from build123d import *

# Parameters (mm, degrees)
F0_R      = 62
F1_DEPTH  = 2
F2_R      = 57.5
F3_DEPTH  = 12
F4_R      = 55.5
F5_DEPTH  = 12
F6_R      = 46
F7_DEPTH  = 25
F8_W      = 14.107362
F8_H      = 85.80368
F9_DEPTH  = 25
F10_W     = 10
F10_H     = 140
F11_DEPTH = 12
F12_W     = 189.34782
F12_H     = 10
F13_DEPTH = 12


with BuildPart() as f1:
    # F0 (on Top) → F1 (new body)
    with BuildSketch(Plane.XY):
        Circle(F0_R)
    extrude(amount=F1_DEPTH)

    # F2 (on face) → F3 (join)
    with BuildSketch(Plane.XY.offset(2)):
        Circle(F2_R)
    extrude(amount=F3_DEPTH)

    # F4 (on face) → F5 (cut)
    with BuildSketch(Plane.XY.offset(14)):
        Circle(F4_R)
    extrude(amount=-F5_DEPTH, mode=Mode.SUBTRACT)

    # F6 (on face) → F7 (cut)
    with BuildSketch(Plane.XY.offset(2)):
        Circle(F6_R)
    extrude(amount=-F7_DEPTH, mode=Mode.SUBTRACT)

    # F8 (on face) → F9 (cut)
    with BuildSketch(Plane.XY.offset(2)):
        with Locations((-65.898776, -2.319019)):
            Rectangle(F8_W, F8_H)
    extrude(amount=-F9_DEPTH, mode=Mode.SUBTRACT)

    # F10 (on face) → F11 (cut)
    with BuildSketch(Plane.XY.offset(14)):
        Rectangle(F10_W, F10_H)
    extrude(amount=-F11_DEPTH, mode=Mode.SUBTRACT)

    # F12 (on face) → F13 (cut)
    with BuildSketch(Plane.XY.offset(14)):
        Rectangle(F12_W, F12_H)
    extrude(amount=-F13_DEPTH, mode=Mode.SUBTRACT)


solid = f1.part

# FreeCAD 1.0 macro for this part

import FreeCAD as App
import Part
import Sketcher

doc = App.newDocument("Part")
body = doc.addObject("PartDesign::Body", "Body")

# Sketch on XY plane
sketch1 = doc.addObject("Sketcher::SketchObject", "Sketch")
body.addObject(sketch1)
sketch1.AttachmentSupport = (doc.XY_Plane, [""])
sketch1.MapMode = "FlatFace"
sketch1.addGeometry(Part.Circle(App.Vector(0, 0, 0), App.Vector(0, 0, 1), 62), False)
sketch1.addConstraint([
    Sketcher.Constraint("Coincident", 0, 3, -1, 1),
    Sketcher.Constraint("Diameter", 0, 124.0),
])
pad1 = doc.addObject("PartDesign::Pad", "Pad")
body.addObject(pad1)
pad1.Profile = sketch1
pad1.Length = 2

# Sketch on XY plane
sketch2 = doc.addObject("Sketcher::SketchObject", "Sketch001")
body.addObject(sketch2)
sketch2.AttachmentSupport = (doc.XY_Plane, [""])
sketch2.MapMode = "FlatFace"
sketch2.AttachmentOffset = App.Placement(App.Vector(0, 0, 2), App.Rotation())
sketch2.addGeometry(Part.Circle(App.Vector(0, 0, 0), App.Vector(0, 0, 1), 58), False)
sketch2.addConstraint([
    Sketcher.Constraint("Coincident", 0, 3, -1, 1),
    Sketcher.Constraint("Diameter", 0, 115.0),
])
pad2 = doc.addObject("PartDesign::Pad", "Pad001")
body.addObject(pad2)
pad2.Profile = sketch2
pad2.Length = 12

# Sketch on XY plane
sketch3 = doc.addObject("Sketcher::SketchObject", "Sketch002")
body.addObject(sketch3)
sketch3.AttachmentSupport = (doc.XY_Plane, [""])
sketch3.MapMode = "FlatFace"
sketch3.AttachmentOffset = App.Placement(App.Vector(0, 0, 14), App.Rotation())
sketch3.addGeometry(Part.Circle(App.Vector(0, 0, 0), App.Vector(0, 0, 1), 56), False)
sketch3.addConstraint([
    Sketcher.Constraint("Coincident", 0, 3, -1, 1),
    Sketcher.Constraint("Diameter", 0, 111.0),
])
pocket1 = doc.addObject("PartDesign::Pocket", "Pocket")
body.addObject(pocket1)
pocket1.Profile = sketch3
pocket1.Length = 12

# Sketch on XY plane
sketch4 = doc.addObject("Sketcher::SketchObject", "Sketch003")
body.addObject(sketch4)
sketch4.AttachmentSupport = (doc.XY_Plane, [""])
sketch4.MapMode = "FlatFace"
sketch4.AttachmentOffset = App.Placement(App.Vector(0, 0, 2), App.Rotation())
sketch4.addGeometry(Part.Circle(App.Vector(0, 0, 0), App.Vector(0, 0, 1), 46), False)
sketch4.addConstraint([
    Sketcher.Constraint("Coincident", 0, 3, -1, 1),
    Sketcher.Constraint("Diameter", 0, 92.0),
])
pocket2 = doc.addObject("PartDesign::Pocket", "Pocket001")
body.addObject(pocket2)
pocket2.Profile = sketch4
pocket2.Length = 25

# Sketch on XY plane
sketch5 = doc.addObject("Sketcher::SketchObject", "Sketch004")
body.addObject(sketch5)
sketch5.AttachmentSupport = (doc.XY_Plane, [""])
sketch5.MapMode = "FlatFace"
sketch5.AttachmentOffset = App.Placement(App.Vector(0, 0, 2), App.Rotation())
sketch5.addGeometry([
    Part.LineSegment(App.Vector(-73, 41, 0), App.Vector(-73, -45, 0)),
    Part.LineSegment(App.Vector(-73, -45, 0), App.Vector(-59, -45, 0)),
    Part.LineSegment(App.Vector(-59, -45, 0), App.Vector(-59, 41, 0)),
    Part.LineSegment(App.Vector(-59, 41, 0), App.Vector(-73, 41, 0)),
], False)
sketch5.addConstraint([
    Sketcher.Constraint("Coincident", 0, 2, 1, 1),
    Sketcher.Constraint("Coincident", 1, 2, 2, 1),
    Sketcher.Constraint("Coincident", 2, 2, 3, 1),
    Sketcher.Constraint("Coincident", 3, 2, 0, 1),
    Sketcher.Constraint("Vertical", 0),
    Sketcher.Constraint("Horizontal", 1),
    Sketcher.Constraint("Vertical", 2),
    Sketcher.Constraint("Horizontal", 3),
    Sketcher.Constraint("DistanceX", 1, 1, 1, 2, 14.107362),
    Sketcher.Constraint("DistanceY", 0, 2, 0, 1, 85.80368),
    Sketcher.Constraint("DistanceY", 0, 2, -1, 1, 45.220859),
    Sketcher.Constraint("DistanceX", 0, 2, -1, 1, 72.952457),
])
pocket3 = doc.addObject("PartDesign::Pocket", "Pocket002")
body.addObject(pocket3)
pocket3.Profile = sketch5
pocket3.Length = 25

# Sketch on XY plane
sketch6 = doc.addObject("Sketcher::SketchObject", "Sketch005")
body.addObject(sketch6)
sketch6.AttachmentSupport = (doc.XY_Plane, [""])
sketch6.MapMode = "FlatFace"
sketch6.AttachmentOffset = App.Placement(App.Vector(0, 0, 14), App.Rotation())
sketch6.addGeometry([
    Part.LineSegment(App.Vector(-5, 70, 0), App.Vector(-5, -70, 0)),
    Part.LineSegment(App.Vector(-5, -70, 0), App.Vector(5, -70, 0)),
    Part.LineSegment(App.Vector(5, -70, 0), App.Vector(5, 70, 0)),
    Part.LineSegment(App.Vector(5, 70, 0), App.Vector(-5, 70, 0)),
], False)
sketch6.addConstraint([
    Sketcher.Constraint("Coincident", 0, 2, 1, 1),
    Sketcher.Constraint("Coincident", 1, 2, 2, 1),
    Sketcher.Constraint("Coincident", 2, 2, 3, 1),
    Sketcher.Constraint("Coincident", 3, 2, 0, 1),
    Sketcher.Constraint("Vertical", 0),
    Sketcher.Constraint("Horizontal", 1),
    Sketcher.Constraint("Vertical", 2),
    Sketcher.Constraint("Horizontal", 3),
    Sketcher.Constraint("Symmetric", 0, 2, 2, 2, -1, 1),
    Sketcher.Constraint("DistanceX", 1, 1, 1, 2, 10.0),
    Sketcher.Constraint("DistanceY", 0, 2, 0, 1, 140.0),
])
pocket4 = doc.addObject("PartDesign::Pocket", "Pocket003")
body.addObject(pocket4)
pocket4.Profile = sketch6
pocket4.Length = 12

# Sketch on XY plane
sketch7 = doc.addObject("Sketcher::SketchObject", "Sketch006")
body.addObject(sketch7)
sketch7.AttachmentSupport = (doc.XY_Plane, [""])
sketch7.MapMode = "FlatFace"
sketch7.AttachmentOffset = App.Placement(App.Vector(0, 0, 14), App.Rotation())
sketch7.addGeometry([
    Part.LineSegment(App.Vector(-95, 5, 0), App.Vector(-95, -5, 0)),
    Part.LineSegment(App.Vector(-95, -5, 0), App.Vector(95, -5, 0)),
    Part.LineSegment(App.Vector(95, -5, 0), App.Vector(95, 5, 0)),
    Part.LineSegment(App.Vector(95, 5, 0), App.Vector(-95, 5, 0)),
], False)
sketch7.addConstraint([
    Sketcher.Constraint("Coincident", 0, 2, 1, 1),
    Sketcher.Constraint("Coincident", 1, 2, 2, 1),
    Sketcher.Constraint("Coincident", 2, 2, 3, 1),
    Sketcher.Constraint("Coincident", 3, 2, 0, 1),
    Sketcher.Constraint("Vertical", 0),
    Sketcher.Constraint("Horizontal", 1),
    Sketcher.Constraint("Vertical", 2),
    Sketcher.Constraint("Horizontal", 3),
    Sketcher.Constraint("Symmetric", 0, 2, 2, 2, -1, 1),
    Sketcher.Constraint("DistanceY", 0, 2, 0, 1, 10.0),
    Sketcher.Constraint("DistanceX", 1, 1, 1, 2, 189.34782),
])
pocket5 = doc.addObject("PartDesign::Pocket", "Pocket004")
body.addObject(pocket5)
pocket5.Profile = sketch7
pocket5.Length = 12

doc.recompute()
